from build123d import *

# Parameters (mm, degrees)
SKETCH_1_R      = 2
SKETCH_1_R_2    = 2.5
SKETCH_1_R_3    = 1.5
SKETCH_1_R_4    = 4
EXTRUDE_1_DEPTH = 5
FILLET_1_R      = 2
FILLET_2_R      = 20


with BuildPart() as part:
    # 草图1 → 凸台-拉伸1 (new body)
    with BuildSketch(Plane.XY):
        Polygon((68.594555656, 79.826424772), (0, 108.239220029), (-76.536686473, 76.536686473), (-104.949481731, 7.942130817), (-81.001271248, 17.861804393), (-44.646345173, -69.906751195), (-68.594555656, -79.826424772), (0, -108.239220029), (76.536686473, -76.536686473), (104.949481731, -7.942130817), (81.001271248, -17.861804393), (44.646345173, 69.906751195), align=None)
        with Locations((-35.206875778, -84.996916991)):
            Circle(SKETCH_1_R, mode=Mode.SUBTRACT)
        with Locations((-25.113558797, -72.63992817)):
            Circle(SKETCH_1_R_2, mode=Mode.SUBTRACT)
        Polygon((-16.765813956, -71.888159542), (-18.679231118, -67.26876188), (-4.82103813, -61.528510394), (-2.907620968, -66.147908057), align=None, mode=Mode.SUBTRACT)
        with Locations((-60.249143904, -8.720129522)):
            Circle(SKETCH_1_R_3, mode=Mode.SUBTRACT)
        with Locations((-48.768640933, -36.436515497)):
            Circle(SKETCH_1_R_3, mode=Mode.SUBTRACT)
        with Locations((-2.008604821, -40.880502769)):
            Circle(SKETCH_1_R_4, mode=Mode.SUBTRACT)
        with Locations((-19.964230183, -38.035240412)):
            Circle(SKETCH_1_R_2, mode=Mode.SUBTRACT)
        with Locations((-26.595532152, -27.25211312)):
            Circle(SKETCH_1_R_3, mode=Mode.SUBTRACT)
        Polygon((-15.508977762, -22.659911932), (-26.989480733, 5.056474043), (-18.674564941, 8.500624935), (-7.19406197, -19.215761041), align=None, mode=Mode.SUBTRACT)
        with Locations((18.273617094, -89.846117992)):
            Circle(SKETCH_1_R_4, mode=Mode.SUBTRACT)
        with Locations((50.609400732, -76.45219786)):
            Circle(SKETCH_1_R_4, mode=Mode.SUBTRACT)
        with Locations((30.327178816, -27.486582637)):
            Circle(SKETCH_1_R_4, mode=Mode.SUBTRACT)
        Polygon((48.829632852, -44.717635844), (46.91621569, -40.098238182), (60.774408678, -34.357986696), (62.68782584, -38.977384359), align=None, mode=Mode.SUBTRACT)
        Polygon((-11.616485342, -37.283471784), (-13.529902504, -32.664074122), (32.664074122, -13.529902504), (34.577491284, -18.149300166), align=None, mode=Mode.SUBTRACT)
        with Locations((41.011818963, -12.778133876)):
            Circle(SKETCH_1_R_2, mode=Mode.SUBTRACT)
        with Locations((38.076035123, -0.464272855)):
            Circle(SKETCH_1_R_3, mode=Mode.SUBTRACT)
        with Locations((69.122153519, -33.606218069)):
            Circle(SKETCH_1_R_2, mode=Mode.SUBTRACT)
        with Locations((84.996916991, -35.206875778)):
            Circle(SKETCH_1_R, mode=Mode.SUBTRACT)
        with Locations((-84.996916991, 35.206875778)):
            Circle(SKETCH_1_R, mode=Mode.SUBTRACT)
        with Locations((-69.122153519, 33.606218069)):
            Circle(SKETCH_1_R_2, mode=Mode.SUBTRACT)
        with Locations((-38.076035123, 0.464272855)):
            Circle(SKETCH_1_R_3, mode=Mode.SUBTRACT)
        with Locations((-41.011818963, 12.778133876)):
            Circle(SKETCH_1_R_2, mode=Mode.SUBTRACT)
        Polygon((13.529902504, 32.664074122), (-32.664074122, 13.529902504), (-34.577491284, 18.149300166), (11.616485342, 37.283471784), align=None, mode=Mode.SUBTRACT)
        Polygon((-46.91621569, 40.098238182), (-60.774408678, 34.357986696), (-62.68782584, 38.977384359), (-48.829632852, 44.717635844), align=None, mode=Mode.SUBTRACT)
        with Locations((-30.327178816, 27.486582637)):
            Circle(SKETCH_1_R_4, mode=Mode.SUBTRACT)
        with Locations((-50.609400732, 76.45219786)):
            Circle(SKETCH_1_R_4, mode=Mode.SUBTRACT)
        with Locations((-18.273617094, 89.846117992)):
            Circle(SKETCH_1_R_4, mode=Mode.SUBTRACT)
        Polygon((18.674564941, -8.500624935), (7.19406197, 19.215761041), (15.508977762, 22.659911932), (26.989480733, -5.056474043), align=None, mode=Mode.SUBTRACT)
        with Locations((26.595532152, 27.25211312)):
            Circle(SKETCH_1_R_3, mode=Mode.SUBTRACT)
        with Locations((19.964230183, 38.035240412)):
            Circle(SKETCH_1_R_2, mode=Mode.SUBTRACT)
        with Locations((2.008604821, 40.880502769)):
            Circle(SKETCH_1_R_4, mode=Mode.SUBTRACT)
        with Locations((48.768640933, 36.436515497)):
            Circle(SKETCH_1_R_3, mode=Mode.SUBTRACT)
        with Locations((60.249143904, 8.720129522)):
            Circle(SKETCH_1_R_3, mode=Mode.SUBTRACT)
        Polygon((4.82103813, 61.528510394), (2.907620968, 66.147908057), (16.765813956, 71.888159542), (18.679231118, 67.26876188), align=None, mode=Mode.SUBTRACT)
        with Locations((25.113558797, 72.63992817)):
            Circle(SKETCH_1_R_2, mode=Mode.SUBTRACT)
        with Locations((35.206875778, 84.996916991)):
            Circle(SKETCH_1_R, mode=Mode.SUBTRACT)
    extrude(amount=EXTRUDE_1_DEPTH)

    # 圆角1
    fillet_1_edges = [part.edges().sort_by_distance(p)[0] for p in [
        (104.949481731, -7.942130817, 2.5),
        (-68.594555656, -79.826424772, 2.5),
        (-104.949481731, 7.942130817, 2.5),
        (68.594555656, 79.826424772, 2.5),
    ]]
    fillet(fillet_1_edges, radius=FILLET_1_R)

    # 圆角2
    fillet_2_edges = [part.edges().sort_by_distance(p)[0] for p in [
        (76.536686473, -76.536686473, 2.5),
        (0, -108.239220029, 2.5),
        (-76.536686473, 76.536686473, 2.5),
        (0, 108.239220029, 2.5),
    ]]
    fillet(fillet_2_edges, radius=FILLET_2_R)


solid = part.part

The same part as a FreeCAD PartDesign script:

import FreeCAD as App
import Part
import Sketcher
Q = App.Units.Quantity


def edges_at(feature, points):
    """Names of the edges that pass closest to the given points."""
    edges = feature.Shape.Edges
    near = lambda p: min(range(len(edges)), key=lambda i: edges[i].distToShape(Part.Vertex(*p))[0])
    return sorted({f"Edge{near(p) + 1}" for p in points})

doc = App.newDocument("Part")
body = doc.addObject("PartDesign::Body", "Body")

# Sketch on XY plane
sketch1 = body.newObject("Sketcher::SketchObject", "Sketch")
sketch1.AttachmentSupport = (doc.getObject("XY_Plane"), [""])
sketch1.MapMode = "FlatFace"
sketch1.addGeometry(Part.LineSegment(App.Vector(68.6, 79.8, 0), App.Vector(0, 108.2, 0)), False)
sketch1.addGeometry(Part.LineSegment(App.Vector(0, 108.2, 0), App.Vector(-76.5, 76.5, 0)), False)
sketch1.addGeometry(Part.LineSegment(App.Vector(-76.5, 76.5, 0), App.Vector(-104.9, 7.9, 0)), False)
sketch1.addGeometry(Part.LineSegment(App.Vector(-104.9, 7.9, 0), App.Vector(-81, 17.9, 0)), False)
sketch1.addGeometry(Part.LineSegment(App.Vector(-81, 17.9, 0), App.Vector(-44.6, -69.9, 0)), False)
sketch1.addGeometry(Part.LineSegment(App.Vector(-44.6, -69.9, 0), App.Vector(-68.6, -79.8, 0)), False)
sketch1.addGeometry(Part.LineSegment(App.Vector(-68.6, -79.8, 0), App.Vector(0, -108.2, 0)), False)
sketch1.addGeometry(Part.LineSegment(App.Vector(0, -108.2, 0), App.Vector(76.5, -76.5, 0)), False)
sketch1.addGeometry(Part.LineSegment(App.Vector(76.5, -76.5, 0), App.Vector(104.9, -7.9, 0)), False)
sketch1.addGeometry(Part.LineSegment(App.Vector(104.9, -7.9, 0), App.Vector(81, -17.9, 0)), False)
sketch1.addGeometry(Part.LineSegment(App.Vector(81, -17.9, 0), App.Vector(44.6, 69.9, 0)), False)
sketch1.addGeometry(Part.LineSegment(App.Vector(44.6, 69.9, 0), App.Vector(68.6, 79.8, 0)), False)
sketch1.addGeometry(Part.Circle(App.Vector(-35.2, -85, 0), App.Vector(0, 0, 1), 2), False)
sketch1.addGeometry(Part.Circle(App.Vector(-25.1, -72.6, 0), App.Vector(0, 0, 1), 2.5), False)
sketch1.addGeometry(Part.LineSegment(App.Vector(-2.9, -66.1, 0), App.Vector(-16.8, -71.9, 0)), False)
sketch1.addGeometry(Part.LineSegment(App.Vector(-16.8, -71.9, 0), App.Vector(-18.7, -67.3, 0)), False)
sketch1.addGeometry(Part.LineSegment(App.Vector(-18.7, -67.3, 0), App.Vector(-4.8, -61.5, 0)), False)
sketch1.addGeometry(Part.LineSegment(App.Vector(-4.8, -61.5, 0), App.Vector(-2.9, -66.1, 0)), False)
sketch1.addGeometry(Part.Circle(App.Vector(-48.8, -36.4, 0), App.Vector(0, 0, 1), 1.5), False)
sketch1.addGeometry(Part.Circle(App.Vector(-60.2, -8.7, 0), App.Vector(0, 0, 1), 1.5), False)
sketch1.addGeometry(Part.Circle(App.Vector(-26.6, -27.3, 0), App.Vector(0, 0, 1), 1.5), False)
sketch1.addGeometry(Part.Circle(App.Vector(-20, -38, 0), App.Vector(0, 0, 1), 2.5), False)
sketch1.addGeometry(Part.Circle(App.Vector(-2, -40.9, 0), App.Vector(0, 0, 1), 4), False)
sketch1.addGeometry(Part.LineSegment(App.Vector(-7.2, -19.2, 0), App.Vector(-15.5, -22.7, 0)), False)
sketch1.addGeometry(Part.LineSegment(App.Vector(-15.5, -22.7, 0), App.Vector(-27, 5.1, 0)), False)
sketch1.addGeometry(Part.LineSegment(App.Vector(-27, 5.1, 0), App.Vector(-18.7, 8.5, 0)), False)
sketch1.addGeometry(Part.LineSegment(App.Vector(-18.7, 8.5, 0), App.Vector(-7.2, -19.2, 0)), False)
sketch1.addGeometry(Part.Circle(App.Vector(18.3, -89.8, 0), App.Vector(0, 0, 1), 4), False)
sketch1.addGeometry(Part.Circle(App.Vector(50.6, -76.5, 0), App.Vector(0, 0, 1), 4), False)
sketch1.addGeometry(Part.LineSegment(App.Vector(34.6, -18.1, 0), App.Vector(-11.6, -37.3, 0)), False)
sketch1.addGeometry(Part.LineSegment(App.Vector(-11.6, -37.3, 0), App.Vector(-13.5, -32.7, 0)), False)
sketch1.addGeometry(Part.LineSegment(App.Vector(-13.5, -32.7, 0), App.Vector(32.7, -13.5, 0)), False)
sketch1.addGeometry(Part.LineSegment(App.Vector(32.7, -13.5, 0), App.Vector(34.6, -18.1, 0)), False)
sketch1.addGeometry(Part.Circle(App.Vector(30.3, -27.5, 0), App.Vector(0, 0, 1), 4), False)
sketch1.addGeometry(Part.Circle(App.Vector(41, -12.8, 0), App.Vector(0, 0, 1), 2.5), False)
sketch1.addGeometry(Part.Circle(App.Vector(38.1, -0.5, 0), App.Vector(0, 0, 1), 1.5), False)
sketch1.addGeometry(Part.LineSegment(App.Vector(62.7, -39, 0), App.Vector(48.8, -44.7, 0)), False)
sketch1.addGeometry(Part.LineSegment(App.Vector(48.8, -44.7, 0), App.Vector(46.9, -40.1, 0)), False)
sketch1.addGeometry(Part.LineSegment(App.Vector(46.9, -40.1, 0), App.Vector(60.8, -34.4, 0)), False)
sketch1.addGeometry(Part.LineSegment(App.Vector(60.8, -34.4, 0), App.Vector(62.7, -39, 0)), False)
sketch1.addGeometry(Part.Circle(App.Vector(85, -35.2, 0), App.Vector(0, 0, 1), 2), False)
sketch1.addGeometry(Part.Circle(App.Vector(69.1, -33.6, 0), App.Vector(0, 0, 1), 2.5), False)
sketch1.addGeometry(Part.Circle(App.Vector(-69.1, 33.6, 0), App.Vector(0, 0, 1), 2.5), False)
sketch1.addGeometry(Part.Circle(App.Vector(-85, 35.2, 0), App.Vector(0, 0, 1), 2), False)
sketch1.addGeometry(Part.LineSegment(App.Vector(-48.8, 44.7, 0), App.Vector(-46.9, 40.1, 0)), False)
sketch1.addGeometry(Part.LineSegment(App.Vector(-46.9, 40.1, 0), App.Vector(-60.8, 34.4, 0)), False)
sketch1.addGeometry(Part.LineSegment(App.Vector(-60.8, 34.4, 0), App.Vector(-62.7, 39, 0)), False)
sketch1.addGeometry(Part.LineSegment(App.Vector(-62.7, 39, 0), App.Vector(-48.8, 44.7, 0)), False)
sketch1.addGeometry(Part.Circle(App.Vector(-38.1, 0.5, 0), App.Vector(0, 0, 1), 1.5), False)
sketch1.addGeometry(Part.Circle(App.Vector(-41, 12.8, 0), App.Vector(0, 0, 1), 2.5), False)
sketch1.addGeometry(Part.Circle(App.Vector(-30.3, 27.5, 0), App.Vector(0, 0, 1), 4), False)
sketch1.addGeometry(Part.LineSegment(App.Vector(11.6, 37.3, 0), App.Vector(13.5, 32.7, 0)), False)
sketch1.addGeometry(Part.LineSegment(App.Vector(13.5, 32.7, 0), App.Vector(-32.7, 13.5, 0)), False)
sketch1.addGeometry(Part.LineSegment(App.Vector(-32.7, 13.5, 0), App.Vector(-34.6, 18.1, 0)), False)
sketch1.addGeometry(Part.LineSegment(App.Vector(-34.6, 18.1, 0), App.Vector(11.6, 37.3, 0)), False)
sketch1.addGeometry(Part.Circle(App.Vector(-50.6, 76.5, 0), App.Vector(0, 0, 1), 4), False)
sketch1.addGeometry(Part.Circle(App.Vector(-18.3, 89.8, 0), App.Vector(0, 0, 1), 4), False)
sketch1.addGeometry(Part.LineSegment(App.Vector(27, -5.1, 0), App.Vector(18.7, -8.5, 0)), False)
sketch1.addGeometry(Part.LineSegment(App.Vector(18.7, -8.5, 0), App.Vector(7.2, 19.2, 0)), False)
sketch1.addGeometry(Part.LineSegment(App.Vector(7.2, 19.2, 0), App.Vector(15.5, 22.7, 0)), False)
sketch1.addGeometry(Part.LineSegment(App.Vector(15.5, 22.7, 0), App.Vector(27, -5.1, 0)), False)
sketch1.addGeometry(Part.Circle(App.Vector(2, 40.9, 0), App.Vector(0, 0, 1), 4), False)
sketch1.addGeometry(Part.Circle(App.Vector(20, 38, 0), App.Vector(0, 0, 1), 2.5), False)
sketch1.addGeometry(Part.Circle(App.Vector(26.6, 27.3, 0), App.Vector(0, 0, 1), 1.5), False)
sketch1.addGeometry(Part.Circle(App.Vector(60.2, 8.7, 0), App.Vector(0, 0, 1), 1.5), False)
sketch1.addGeometry(Part.Circle(App.Vector(48.8, 36.4, 0), App.Vector(0, 0, 1), 1.5), False)
sketch1.addGeometry(Part.LineSegment(App.Vector(18.7, 67.3, 0), App.Vector(4.8, 61.5, 0)), False)
sketch1.addGeometry(Part.LineSegment(App.Vector(4.8, 61.5, 0), App.Vector(2.9, 66.1, 0)), False)
sketch1.addGeometry(Part.LineSegment(App.Vector(2.9, 66.1, 0), App.Vector(16.8, 71.9, 0)), False)
sketch1.addGeometry(Part.LineSegment(App.Vector(16.8, 71.9, 0), App.Vector(18.7, 67.3, 0)), False)
sketch1.addGeometry(Part.Circle(App.Vector(25.1, 72.6, 0), App.Vector(0, 0, 1), 2.5), False)
sketch1.addGeometry(Part.Circle(App.Vector(35.2, 85, 0), App.Vector(0, 0, 1), 2), False)
sketch1.addConstraint(Sketcher.Constraint("Coincident", 0, 2, 1, 1))
sketch1.addConstraint(Sketcher.Constraint("Coincident", 1, 2, 2, 1))
sketch1.addConstraint(Sketcher.Constraint("Coincident", 2, 2, 3, 1))
sketch1.addConstraint(Sketcher.Constraint("Coincident", 3, 2, 4, 1))
sketch1.addConstraint(Sketcher.Constraint("Coincident", 4, 2, 5, 1))
sketch1.addConstraint(Sketcher.Constraint("Coincident", 5, 2, 6, 1))
sketch1.addConstraint(Sketcher.Constraint("Coincident", 6, 2, 7, 1))
sketch1.addConstraint(Sketcher.Constraint("Coincident", 7, 2, 8, 1))
sketch1.addConstraint(Sketcher.Constraint("Coincident", 8, 2, 9, 1))
sketch1.addConstraint(Sketcher.Constraint("Coincident", 9, 2, 10, 1))
sketch1.addConstraint(Sketcher.Constraint("Coincident", 10, 2, 11, 1))
sketch1.addConstraint(Sketcher.Constraint("Coincident", 11, 2, 0, 1))
sketch1.addConstraint(Sketcher.Constraint("Coincident", 14, 2, 15, 1))
sketch1.addConstraint(Sketcher.Constraint("Coincident", 15, 2, 16, 1))
sketch1.addConstraint(Sketcher.Constraint("Coincident", 16, 2, 17, 1))
sketch1.addConstraint(Sketcher.Constraint("Coincident", 17, 2, 14, 1))
sketch1.addConstraint(Sketcher.Constraint("Coincident", 23, 2, 24, 1))
sketch1.addConstraint(Sketcher.Constraint("Coincident", 24, 2, 25, 1))
sketch1.addConstraint(Sketcher.Constraint("Coincident", 25, 2, 26, 1))
sketch1.addConstraint(Sketcher.Constraint("Coincident", 26, 2, 23, 1))
sketch1.addConstraint(Sketcher.Constraint("Coincident", 29, 2, 30, 1))
sketch1.addConstraint(Sketcher.Constraint("Coincident", 30, 2, 31, 1))
sketch1.addConstraint(Sketcher.Constraint("Coincident", 31, 2, 32, 1))
sketch1.addConstraint(Sketcher.Constraint("Coincident", 32, 2, 29, 1))
sketch1.addConstraint(Sketcher.Constraint("Coincident", 36, 2, 37, 1))
sketch1.addConstraint(Sketcher.Constraint("Coincident", 37, 2, 38, 1))
sketch1.addConstraint(Sketcher.Constraint("Coincident", 38, 2, 39, 1))
sketch1.addConstraint(Sketcher.Constraint("Coincident", 39, 2, 36, 1))
sketch1.addConstraint(Sketcher.Constraint("Coincident", 44, 2, 45, 1))
sketch1.addConstraint(Sketcher.Constraint("Coincident", 45, 2, 46, 1))
sketch1.addConstraint(Sketcher.Constraint("Coincident", 46, 2, 47, 1))
sketch1.addConstraint(Sketcher.Constraint("Coincident", 47, 2, 44, 1))
sketch1.addConstraint(Sketcher.Constraint("Coincident", 51, 2, 52, 1))
sketch1.addConstraint(Sketcher.Constraint("Coincident", 52, 2, 53, 1))
sketch1.addConstraint(Sketcher.Constraint("Coincident", 53, 2, 54, 1))
sketch1.addConstraint(Sketcher.Constraint("Coincident", 54, 2, 51, 1))
sketch1.addConstraint(Sketcher.Constraint("Coincident", 57, 2, 58, 1))
sketch1.addConstraint(Sketcher.Constraint("Coincident", 58, 2, 59, 1))
sketch1.addConstraint(Sketcher.Constraint("Coincident", 59, 2, 60, 1))
sketch1.addConstraint(Sketcher.Constraint("Coincident", 60, 2, 57, 1))
sketch1.addConstraint(Sketcher.Constraint("Coincident", 66, 2, 67, 1))
sketch1.addConstraint(Sketcher.Constraint("Coincident", 67, 2, 68, 1))
sketch1.addConstraint(Sketcher.Constraint("Coincident", 68, 2, 69, 1))
sketch1.addConstraint(Sketcher.Constraint("Coincident", 69, 2, 66, 1))
sketch1.addConstraint(Sketcher.Constraint("Equal", 18, 19))
sketch1.addConstraint(Sketcher.Constraint("Equal", 19, 20))
sketch1.addConstraint(Sketcher.Constraint("Equal", 13, 21))
sketch1.addConstraint(Sketcher.Constraint("Equal", 22, 27))
sketch1.addConstraint(Sketcher.Constraint("Equal", 27, 28))
sketch1.addConstraint(Sketcher.Constraint("Equal", 28, 33))
sketch1.addConstraint(Sketcher.Constraint("Equal", 21, 34))
sketch1.addConstraint(Sketcher.Constraint("Equal", 20, 35))
sketch1.addConstraint(Sketcher.Constraint("Equal", 12, 40))
sketch1.addConstraint(Sketcher.Constraint("Equal", 34, 41))
sketch1.addConstraint(Sketcher.Constraint("Equal", 41, 42))
sketch1.addConstraint(Sketcher.Constraint("Equal", 40, 43))
sketch1.addConstraint(Sketcher.Constraint("Equal", 35, 48))
sketch1.addConstraint(Sketcher.Constraint("Equal", 42, 49))
sketch1.addConstraint(Sketcher.Constraint("Equal", 33, 50))
sketch1.addConstraint(Sketcher.Constraint("Equal", 50, 55))
sketch1.addConstraint(Sketcher.Constraint("Equal", 55, 56))
sketch1.addConstraint(Sketcher.Constraint("Equal", 56, 61))
sketch1.addConstraint(Sketcher.Constraint("Equal", 49, 62))
sketch1.addConstraint(Sketcher.Constraint("Equal", 48, 63))
sketch1.addConstraint(Sketcher.Constraint("Equal", 63, 64))
sketch1.addConstraint(Sketcher.Constraint("Equal", 64, 65))
sketch1.addConstraint(Sketcher.Constraint("Equal", 62, 70))
sketch1.addConstraint(Sketcher.Constraint("Equal", 43, 71))
sketch1.addConstraint(Sketcher.Constraint("Symmetric", 41, 3, 42, 3, -1, 1))
sketch1.addConstraint(Sketcher.Constraint("Symmetric", 40, 3, 43, 3, -1, 1))
sketch1.addConstraint(Sketcher.Constraint("Symmetric", 35, 3, 48, 3, -1, 1))
sketch1.addConstraint(Sketcher.Constraint("Symmetric", 34, 3, 49, 3, -1, 1))
sketch1.addConstraint(Sketcher.Constraint("Symmetric", 33, 3, 50, 3, -1, 1))
sketch1.addConstraint(Sketcher.Constraint("Symmetric", 28, 3, 55, 3, -1, 1))
sketch1.addConstraint(Sketcher.Constraint("Symmetric", 27, 3, 56, 3, -1, 1))
sketch1.addConstraint(Sketcher.Constraint("Symmetric", 22, 3, 61, 3, -1, 1))
sketch1.addConstraint(Sketcher.Constraint("Symmetric", 21, 3, 62, 3, -1, 1))
sketch1.addConstraint(Sketcher.Constraint("Symmetric", 20, 3, 63, 3, -1, 1))
sketch1.addConstraint(Sketcher.Constraint("Symmetric", 19, 3, 64, 3, -1, 1))
sketch1.addConstraint(Sketcher.Constraint("Symmetric", 18, 3, 65, 3, -1, 1))
sketch1.addConstraint(Sketcher.Constraint("Symmetric", 13, 3, 70, 3, -1, 1))
sketch1.addConstraint(Sketcher.Constraint("Symmetric", 12, 3, 71, 3, -1, 1))
sketch1.addConstraint(Sketcher.Constraint("Symmetric", 0, 2, 6, 2, -1, 1))
sketch1.addConstraint(Sketcher.Constraint("Symmetric", 1, 2, 7, 2, -1, 1))
sketch1.addConstraint(Sketcher.Constraint("Symmetric", 2, 2, 8, 2, -1, 1))
sketch1.addConstraint(Sketcher.Constraint("Symmetric", 3, 2, 9, 2, -1, 1))
sketch1.addConstraint(Sketcher.Constraint("Symmetric", 4, 2, 10, 2, -1, 1))
sketch1.addConstraint(Sketcher.Constraint("Symmetric", 5, 2, 11, 2, -1, 1))
sketch1.addConstraint(Sketcher.Constraint("Symmetric", 37, 2, 44, 2, -1, 1))
sketch1.addConstraint(Sketcher.Constraint("Symmetric", 38, 2, 45, 2, -1, 1))
sketch1.addConstraint(Sketcher.Constraint("Symmetric", 39, 2, 46, 2, -1, 1))
sketch1.addConstraint(Sketcher.Constraint("Symmetric", 36, 2, 47, 2, -1, 1))
sketch1.addConstraint(Sketcher.Constraint("Symmetric", 30, 2, 51, 2, -1, 1))
sketch1.addConstraint(Sketcher.Constraint("Symmetric", 31, 2, 52, 2, -1, 1))
sketch1.addConstraint(Sketcher.Constraint("Symmetric", 32, 2, 53, 2, -1, 1))
sketch1.addConstraint(Sketcher.Constraint("Symmetric", 29, 2, 54, 2, -1, 1))
sketch1.addConstraint(Sketcher.Constraint("Symmetric", 25, 2, 57, 2, -1, 1))
sketch1.addConstraint(Sketcher.Constraint("Symmetric", 26, 2, 58, 2, -1, 1))
sketch1.addConstraint(Sketcher.Constraint("Symmetric", 23, 2, 59, 2, -1, 1))
sketch1.addConstraint(Sketcher.Constraint("Symmetric", 24, 2, 60, 2, -1, 1))
sketch1.addConstraint(Sketcher.Constraint("Symmetric", 16, 2, 66, 2, -1, 1))
sketch1.addConstraint(Sketcher.Constraint("Symmetric", 17, 2, 67, 2, -1, 1))
sketch1.addConstraint(Sketcher.Constraint("Symmetric", 14, 2, 68, 2, -1, 1))
sketch1.addConstraint(Sketcher.Constraint("Symmetric", 15, 2, 69, 2, -1, 1))
sketch1.addConstraint(Sketcher.Constraint("PointOnObject", 0, 2, -2))
sketch1.addConstraint(Sketcher.Constraint("Perpendicular", 0, 2))
sketch1.addConstraint(Sketcher.Constraint("Parallel", 1, 3))
sketch1.addConstraint(Sketcher.Constraint("Perpendicular", 3, 4))
sketch1.addConstraint(Sketcher.Constraint("Perpendicular", 4, 5))
sketch1.addConstraint(Sketcher.Constraint("Parallel", 11, 14))
sketch1.addConstraint(Sketcher.Constraint("Perpendicular", 14, 15))
sketch1.addConstraint(Sketcher.Constraint("Perpendicular", 15, 16))
sketch1.addConstraint(Sketcher.Constraint("Perpendicular", 16, 17))
sketch1.addConstraint(Sketcher.Constraint("Perpendicular", 17, 23))
sketch1.addConstraint(Sketcher.Constraint("Perpendicular", 23, 24))
sketch1.addConstraint(Sketcher.Constraint("Perpendicular", 24, 25))
sketch1.addConstraint(Sketcher.Constraint("Perpendicular", 25, 26))
sketch1.addConstraint(Sketcher.Constraint("Perpendicular", 26, 29))
sketch1.addConstraint(Sketcher.Constraint("Perpendicular", 29, 30))
sketch1.addConstraint(Sketcher.Constraint("Perpendicular", 30, 31))
sketch1.addConstraint(Sketcher.Constraint("Perpendicular", 31, 32))
sketch1.addConstraint(Sketcher.Constraint("Perpendicular", 32, 36))
sketch1.addConstraint(Sketcher.Constraint("Perpendicular", 36, 37))
sketch1.addConstraint(Sketcher.Constraint("Perpendicular", 37, 38))
sketch1.addConstraint(Sketcher.Constraint("Perpendicular", 38, 39))
sketch1.addConstraint(Sketcher.Constraint("Equal", 0, 2))
sketch1.addConstraint(Sketcher.Constraint("Equal", 3, 5))
sketch1.addConstraint(Sketcher.Constraint("Equal", 17, 30))
sketch1.addConstraint(Sketcher.Constraint("Equal", 16, 36))
sketch1.addConstraint(Sketcher.Constraint("Equal", 32, 37))
sketch1.addConstraint(Sketcher.Constraint("Diameter", 12, Q("4 mm")))
sketch1.addConstraint(Sketcher.Constraint("Diameter", 13, Q("5 mm")))
sketch1.addConstraint(Sketcher.Constraint("Diameter", 18, Q("3 mm")))
sketch1.addConstraint(Sketcher.Constraint("Diameter", 22, Q("8 mm")))
sketch1.addConstraint(Sketcher.Constraint("Distance", 4, Q("95 mm")))
sketch1.addConstraint(Sketcher.Constraint("Distance", 14, Q("15 mm")))
sketch1.addConstraint(Sketcher.Constraint("Distance", 15, Q("5 mm")))
sketch1.addConstraint(Sketcher.Constraint("Distance", 23, Q("9 mm")))
sketch1.addConstraint(Sketcher.Constraint("Distance", 24, Q("30 mm")))
sketch1.addConstraint(Sketcher.Constraint("Distance", 29, Q("50 mm")))
sketch1.addConstraint(Sketcher.Constraint("Angle", 0, Q("157.5 deg")))
sketch1.addConstraint(Sketcher.Constraint("Angle", 1, Q("-157.5 deg")))
sketch1.addConstraint(Sketcher.Constraint("DistanceX", -1, 1, 28, 3, Q("50.609401 mm")))
sketch1.addConstraint(Sketcher.Constraint("DistanceY", 32, 2, -1, 1, Q("18.1493 mm")))
sketch1.addConstraint(Sketcher.Constraint("DistanceX", 13, 3, -1, 1, Q("25.113559 mm")))
sketch1.addConstraint(Sketcher.Constraint("DistanceY", 13, 3, -1, 1, Q("72.639928 mm")))
sketch1.addConstraint(Sketcher.Constraint("DistanceX", 18, 3, -1, 1, Q("48.768641 mm")))
sketch1.addConstraint(Sketcher.Constraint("DistanceY", 19, 3, -1, 1, Q("8.72013 mm")))
sketch1.addConstraint(Sketcher.Constraint("DistanceX", 21, 3, -1, 1, Q("19.96423 mm")))
sketch1.addConstraint(Sketcher.Constraint("DistanceY", 21, 3, -1, 1, Q("38.03524 mm")))
sketch1.addConstraint(Sketcher.Constraint("DistanceX", -1, 1, 33, 3, Q("30.327179 mm")))
sketch1.addConstraint(Sketcher.Constraint("DistanceX", -1, 1, 34, 3, Q("41.011819 mm")))
sketch1.addConstraint(Sketcher.Constraint("DistanceY", 41, 3, -1, 1, Q("33.606218 mm")))
sketch1.addConstraint(Sketcher.Constraint("DistanceY", -1, 1, 0, 2, Q("108.23922 mm")))
sketch1.addConstraint(Sketcher.Constraint("DistanceX", 3, 2, -1, 1, Q("81.001271 mm")))
sketch1.addConstraint(Sketcher.Constraint("DistanceY", 14, 2, -1, 1, Q("71.88816 mm")))
sketch1.addConstraint(Sketcher.Constraint("DistanceX", 15, 2, -1, 1, Q("18.679231 mm")))
sketch1.addConstraint(Sketcher.Constraint("DistanceY", 23, 2, -1, 1, Q("22.659912 mm")))
sketch1.addConstraint(Sketcher.Constraint("DistanceX", 24, 2, -1, 1, Q("26.989481 mm")))
sketch1.addConstraint(Sketcher.Constraint("DistanceX", -1, 1, 32, 2, Q("34.577491 mm")))
sketch1.addConstraint(Sketcher.Constraint("DistanceY", 37, 2, -1, 1, Q("40.098238 mm")))
sketch1.addConstraint(Sketcher.Constraint("DistanceX", -1, 1, 38, 2, Q("60.774409 mm")))
sketch1.addConstraint(Sketcher.Constraint("DistanceX", 12, 3, -1, 1, Q("35.206876 mm")))
sketch1.addConstraint(Sketcher.Constraint("DistanceY", 12, 3, -1, 1, Q("84.996917 mm")))
sketch1.addConstraint(Sketcher.Constraint("DistanceY", 18, 3, -1, 1, Q("36.436515 mm")))
sketch1.addConstraint(Sketcher.Constraint("DistanceX", 19, 3, -1, 1, Q("60.249144 mm")))
sketch1.addConstraint(Sketcher.Constraint("DistanceX", 20, 3, -1, 1, Q("26.595532 mm")))
sketch1.addConstraint(Sketcher.Constraint("DistanceY", 20, 3, -1, 1, Q("27.252113 mm")))
sketch1.addConstraint(Sketcher.Constraint("DistanceX", 22, 3, -1, 1, Q("2.008605 mm")))
sketch1.addConstraint(Sketcher.Constraint("DistanceY", 22, 3, -1, 1, Q("40.880503 mm")))
sketch1.addConstraint(Sketcher.Constraint("DistanceX", -1, 1, 27, 3, Q("18.273617 mm")))
sketch1.addConstraint(Sketcher.Constraint("DistanceY", 27, 3, -1, 1, Q("89.846118 mm")))
sketch1.addConstraint(Sketcher.Constraint("DistanceY", 28, 3, -1, 1, Q("76.452198 mm")))
sketch1.addConstraint(Sketcher.Constraint("DistanceY", 33, 3, -1, 1, Q("27.486583 mm")))
sketch1.addConstraint(Sketcher.Constraint("DistanceY", 34, 3, -1, 1, Q("12.778134 mm")))
sketch1.addConstraint(Sketcher.Constraint("DistanceX", -1, 1, 35, 3, Q("38.076035 mm")))
sketch1.addConstraint(Sketcher.Constraint("DistanceY", 35, 3, -1, 1, Q("0.464273 mm")))
sketch1.addConstraint(Sketcher.Constraint("DistanceX", -1, 1, 40, 3, Q("84.996917 mm")))
sketch1.addConstraint(Sketcher.Constraint("DistanceY", 40, 3, -1, 1, Q("35.206876 mm")))
sketch1.addConstraint(Sketcher.Constraint("DistanceX", -1, 1, 41, 3, Q("69.122154 mm")))
pad1 = body.newObject("PartDesign::Pad", "Pad")
pad1.Profile = sketch1
pad1.Length = 5
doc.recompute()

fillet = body.newObject("PartDesign::Fillet", "Fillet")
fillet.Base = (pad1, edges_at(pad1, [
    (104.949, -7.942, 2.5),
    (-68.595, -79.826, 2.5),
    (-104.949, 7.942, 2.5),
    (68.595, 79.826, 2.5),
]))
fillet.Radius = 2
doc.recompute()

fillet2 = body.newObject("PartDesign::Fillet", "Fillet001")
fillet2.Base = (fillet, edges_at(fillet, [
    (76.537, -76.537, 2.5),
    (0, -108.239, 2.5),
    (-76.537, 76.537, 2.5),
    (0, 108.239, 2.5),
]))
fillet2.Radius = 20

doc.recompute()
